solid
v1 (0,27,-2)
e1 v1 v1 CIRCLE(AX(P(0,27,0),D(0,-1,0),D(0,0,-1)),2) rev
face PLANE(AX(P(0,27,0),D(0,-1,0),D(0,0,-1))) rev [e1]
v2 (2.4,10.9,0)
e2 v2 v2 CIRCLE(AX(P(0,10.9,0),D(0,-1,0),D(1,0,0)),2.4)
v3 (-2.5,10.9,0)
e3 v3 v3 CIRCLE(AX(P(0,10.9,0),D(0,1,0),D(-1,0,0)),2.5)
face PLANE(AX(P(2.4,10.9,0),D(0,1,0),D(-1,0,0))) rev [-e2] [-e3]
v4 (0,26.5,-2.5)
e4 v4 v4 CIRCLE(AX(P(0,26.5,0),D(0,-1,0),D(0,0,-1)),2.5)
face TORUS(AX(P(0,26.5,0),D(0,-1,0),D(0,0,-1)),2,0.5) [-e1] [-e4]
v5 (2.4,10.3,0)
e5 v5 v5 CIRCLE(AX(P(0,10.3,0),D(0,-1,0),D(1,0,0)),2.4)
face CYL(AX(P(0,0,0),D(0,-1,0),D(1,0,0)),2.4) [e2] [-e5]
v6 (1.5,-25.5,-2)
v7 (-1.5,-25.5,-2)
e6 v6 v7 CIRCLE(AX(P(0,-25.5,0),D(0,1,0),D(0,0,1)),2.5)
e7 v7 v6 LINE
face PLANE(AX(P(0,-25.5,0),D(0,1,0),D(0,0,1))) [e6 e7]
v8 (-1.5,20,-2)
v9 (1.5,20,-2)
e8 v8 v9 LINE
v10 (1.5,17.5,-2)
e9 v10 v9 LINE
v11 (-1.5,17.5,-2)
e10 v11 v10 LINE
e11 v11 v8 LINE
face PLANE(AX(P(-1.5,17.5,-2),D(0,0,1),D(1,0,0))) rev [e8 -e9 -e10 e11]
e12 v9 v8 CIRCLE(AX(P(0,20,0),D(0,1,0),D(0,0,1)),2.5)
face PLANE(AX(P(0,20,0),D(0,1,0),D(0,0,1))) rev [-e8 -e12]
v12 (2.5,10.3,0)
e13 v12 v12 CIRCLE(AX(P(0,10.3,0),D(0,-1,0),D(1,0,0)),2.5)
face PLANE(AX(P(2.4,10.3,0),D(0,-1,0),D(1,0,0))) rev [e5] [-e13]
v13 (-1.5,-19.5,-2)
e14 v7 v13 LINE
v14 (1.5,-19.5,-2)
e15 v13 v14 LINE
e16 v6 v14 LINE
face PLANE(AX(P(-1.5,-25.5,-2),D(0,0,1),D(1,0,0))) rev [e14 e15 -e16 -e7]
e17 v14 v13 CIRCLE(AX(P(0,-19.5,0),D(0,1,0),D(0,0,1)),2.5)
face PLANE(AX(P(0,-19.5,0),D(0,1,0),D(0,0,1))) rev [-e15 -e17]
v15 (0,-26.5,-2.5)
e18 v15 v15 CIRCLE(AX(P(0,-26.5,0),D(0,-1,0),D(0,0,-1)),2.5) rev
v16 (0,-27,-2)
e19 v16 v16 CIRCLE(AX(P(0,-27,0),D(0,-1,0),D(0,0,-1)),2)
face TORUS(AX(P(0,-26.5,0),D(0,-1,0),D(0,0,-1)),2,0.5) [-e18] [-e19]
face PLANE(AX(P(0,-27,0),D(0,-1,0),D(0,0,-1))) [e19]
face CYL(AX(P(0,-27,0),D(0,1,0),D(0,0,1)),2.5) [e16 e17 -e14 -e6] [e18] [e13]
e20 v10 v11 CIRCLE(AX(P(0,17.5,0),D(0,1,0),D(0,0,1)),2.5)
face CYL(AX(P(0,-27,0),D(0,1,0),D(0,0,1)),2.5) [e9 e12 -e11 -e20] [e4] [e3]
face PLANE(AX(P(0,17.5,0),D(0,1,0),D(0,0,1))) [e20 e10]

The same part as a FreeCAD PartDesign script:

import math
import FreeCAD as App
import Part
import Sketcher


def edges_at(feature, points):
    """Names of the edges that pass closest to the given points."""
    edges = feature.Shape.Edges
    near = lambda p: min(range(len(edges)), key=lambda i: edges[i].distToShape(Part.Vertex(*p))[0])
    return sorted({f"Edge{near(p) + 1}" for p in points})

doc = App.newDocument("Part")
body = doc.addObject("PartDesign::Body", "Body")

# Sketch on XZ plane
sketch1 = body.newObject("Sketcher::SketchObject", "Sketch")
sketch1.AttachmentSupport = (doc.getObject("XZ_Plane"), [""])
sketch1.MapMode = "FlatFace"
sketch1.addGeometry(Part.Circle(App.Vector(0, 0, 0), App.Vector(0, 0, 1), 2.5), False)
sketch1.addConstraint(Sketcher.Constraint("Coincident", 0, 3, -1, 1))
sketch1.addConstraint(Sketcher.Constraint("Diameter", 0, 5.0))
pad1 = body.newObject("PartDesign::Pad", "Pad")
pad1.Profile = sketch1
pad1.Length = 54
pad1.Midplane = True

# Sketch on XZ plane
sketch2 = body.newObject("Sketcher::SketchObject", "Sketch001")
sketch2.AttachmentSupport = (doc.getObject("XZ_Plane"), [""])
sketch2.MapMode = "FlatFace"
sketch2.AttachmentOffset = App.Placement(App.Vector(0, 0, -17.5), App.Rotation())
sketch2.addGeometry(Part.LineSegment(App.Vector(-1.5, -2, 0), App.Vector(1.5, -2, 0)), False)
sketch2.addGeometry(Part.ArcOfCircle(Part.Circle(App.Vector(0, 0, 0), App.Vector(0, 0, 1), 2.5), math.radians(-126.869898), math.radians(-53.130102)), False)
sketch2.addConstraint(Sketcher.Constraint("Coincident", 0, 1, 1, 1))
sketch2.addConstraint(Sketcher.Constraint("Coincident", 1, 2, 0, 2))
sketch2.addConstraint(Sketcher.Constraint("Horizontal", 0))
sketch2.addConstraint(Sketcher.Constraint("Coincident", 1, 3, -1, 1))
sketch2.addConstraint(Sketcher.Constraint("Radius", 1, 2.5))
sketch2.addConstraint(Sketcher.Constraint("DistanceX", 0, 1, 0, 2, 3.0))
pocket1 = body.newObject("PartDesign::Pocket", "Pocket")
pocket1.Profile = sketch2
pocket1.Length = 2.5

# Sketch on XZ plane
sketch3 = body.newObject("Sketcher::SketchObject", "Sketch002")
sketch3.AttachmentSupport = (doc.getObject("XZ_Plane"), [""])
sketch3.MapMode = "FlatFace"
sketch3.AttachmentOffset = App.Placement(App.Vector(0, 0, 25.5), App.Rotation())
sketch3.addGeometry(Part.LineSegment(App.Vector(-1.5, -2, 0), App.Vector(1.5, -2, 0)), False)
sketch3.addGeometry(Part.ArcOfCircle(Part.Circle(App.Vector(0, 0, 0), App.Vector(0, 0, 1), 2.5), math.radians(-126.869898), math.radians(-53.130102)), False)
sketch3.addConstraint(Sketcher.Constraint("Coincident", 0, 1, 1, 1))
sketch3.addConstraint(Sketcher.Constraint("Coincident", 1, 2, 0, 2))
sketch3.addConstraint(Sketcher.Constraint("Horizontal", 0))
sketch3.addConstraint(Sketcher.Constraint("Coincident", 1, 3, -1, 1))
sketch3.addConstraint(Sketcher.Constraint("Radius", 1, 2.5))
sketch3.addConstraint(Sketcher.Constraint("DistanceX", 0, 1, 0, 2, 3.0))
pocket2 = body.newObject("PartDesign::Pocket", "Pocket001")
pocket2.Profile = sketch3
pocket2.Length = 6
doc.recompute()

fillet = body.newObject("PartDesign::Fillet", "Fillet")
fillet.Base = (pocket2, edges_at(pocket2, [(0, 27, 2.5), (0, -27, 2.5)]))
fillet.Radius = 0.5

# Sketch on XY plane
sketch4 = body.newObject("Sketcher::SketchObject", "Sketch003")
sketch4.AttachmentSupport = (doc.getObject("XY_Plane"), [""])
sketch4.MapMode = "FlatFace"
sketch4.addGeometry(Part.LineSegment(App.Vector(2.4, 10.9, 0), App.Vector(2.4, 10.3, 0)), False)
sketch4.addGeometry(Part.LineSegment(App.Vector(2.4, 10.3, 0), App.Vector(4.4, 10.3, 0)), False)
sketch4.addGeometry(Part.LineSegment(App.Vector(4.4, 10.3, 0), App.Vector(4.4, 10.9, 0)), False)
sketch4.addGeometry(Part.LineSegment(App.Vector(4.4, 10.9, 0), App.Vector(2.4, 10.9, 0)), False)
sketch4.addConstraint(Sketcher.Constraint("Coincident", 0, 2, 1, 1))
sketch4.addConstraint(Sketcher.Constraint("Coincident", 1, 2, 2, 1))
sketch4.addConstraint(Sketcher.Constraint("Coincident", 2, 2, 3, 1))
sketch4.addConstraint(Sketcher.Constraint("Coincident", 3, 2, 0, 1))
sketch4.addConstraint(Sketcher.Constraint("Vertical", 0))
sketch4.addConstraint(Sketcher.Constraint("Horizontal", 1))
sketch4.addConstraint(Sketcher.Constraint("Vertical", 2))
sketch4.addConstraint(Sketcher.Constraint("Horizontal", 3))
sketch4.addConstraint(Sketcher.Constraint("DistanceX", 1, 1, 1, 2, 2.0))
sketch4.addConstraint(Sketcher.Constraint("DistanceY", 0, 2, 0, 1, 0.6))
sketch4.addConstraint(Sketcher.Constraint("DistanceX", -1, 1, 0, 2, 2.4))
sketch4.addConstraint(Sketcher.Constraint("DistanceY", -1, 1, 0, 2, 10.3))
groove = body.newObject("PartDesign::Groove", "Groove")
groove.Profile = sketch4
groove.ReferenceAxis = (sketch4, ["V_Axis"])
groove.Angle = 360

doc.recompute()
